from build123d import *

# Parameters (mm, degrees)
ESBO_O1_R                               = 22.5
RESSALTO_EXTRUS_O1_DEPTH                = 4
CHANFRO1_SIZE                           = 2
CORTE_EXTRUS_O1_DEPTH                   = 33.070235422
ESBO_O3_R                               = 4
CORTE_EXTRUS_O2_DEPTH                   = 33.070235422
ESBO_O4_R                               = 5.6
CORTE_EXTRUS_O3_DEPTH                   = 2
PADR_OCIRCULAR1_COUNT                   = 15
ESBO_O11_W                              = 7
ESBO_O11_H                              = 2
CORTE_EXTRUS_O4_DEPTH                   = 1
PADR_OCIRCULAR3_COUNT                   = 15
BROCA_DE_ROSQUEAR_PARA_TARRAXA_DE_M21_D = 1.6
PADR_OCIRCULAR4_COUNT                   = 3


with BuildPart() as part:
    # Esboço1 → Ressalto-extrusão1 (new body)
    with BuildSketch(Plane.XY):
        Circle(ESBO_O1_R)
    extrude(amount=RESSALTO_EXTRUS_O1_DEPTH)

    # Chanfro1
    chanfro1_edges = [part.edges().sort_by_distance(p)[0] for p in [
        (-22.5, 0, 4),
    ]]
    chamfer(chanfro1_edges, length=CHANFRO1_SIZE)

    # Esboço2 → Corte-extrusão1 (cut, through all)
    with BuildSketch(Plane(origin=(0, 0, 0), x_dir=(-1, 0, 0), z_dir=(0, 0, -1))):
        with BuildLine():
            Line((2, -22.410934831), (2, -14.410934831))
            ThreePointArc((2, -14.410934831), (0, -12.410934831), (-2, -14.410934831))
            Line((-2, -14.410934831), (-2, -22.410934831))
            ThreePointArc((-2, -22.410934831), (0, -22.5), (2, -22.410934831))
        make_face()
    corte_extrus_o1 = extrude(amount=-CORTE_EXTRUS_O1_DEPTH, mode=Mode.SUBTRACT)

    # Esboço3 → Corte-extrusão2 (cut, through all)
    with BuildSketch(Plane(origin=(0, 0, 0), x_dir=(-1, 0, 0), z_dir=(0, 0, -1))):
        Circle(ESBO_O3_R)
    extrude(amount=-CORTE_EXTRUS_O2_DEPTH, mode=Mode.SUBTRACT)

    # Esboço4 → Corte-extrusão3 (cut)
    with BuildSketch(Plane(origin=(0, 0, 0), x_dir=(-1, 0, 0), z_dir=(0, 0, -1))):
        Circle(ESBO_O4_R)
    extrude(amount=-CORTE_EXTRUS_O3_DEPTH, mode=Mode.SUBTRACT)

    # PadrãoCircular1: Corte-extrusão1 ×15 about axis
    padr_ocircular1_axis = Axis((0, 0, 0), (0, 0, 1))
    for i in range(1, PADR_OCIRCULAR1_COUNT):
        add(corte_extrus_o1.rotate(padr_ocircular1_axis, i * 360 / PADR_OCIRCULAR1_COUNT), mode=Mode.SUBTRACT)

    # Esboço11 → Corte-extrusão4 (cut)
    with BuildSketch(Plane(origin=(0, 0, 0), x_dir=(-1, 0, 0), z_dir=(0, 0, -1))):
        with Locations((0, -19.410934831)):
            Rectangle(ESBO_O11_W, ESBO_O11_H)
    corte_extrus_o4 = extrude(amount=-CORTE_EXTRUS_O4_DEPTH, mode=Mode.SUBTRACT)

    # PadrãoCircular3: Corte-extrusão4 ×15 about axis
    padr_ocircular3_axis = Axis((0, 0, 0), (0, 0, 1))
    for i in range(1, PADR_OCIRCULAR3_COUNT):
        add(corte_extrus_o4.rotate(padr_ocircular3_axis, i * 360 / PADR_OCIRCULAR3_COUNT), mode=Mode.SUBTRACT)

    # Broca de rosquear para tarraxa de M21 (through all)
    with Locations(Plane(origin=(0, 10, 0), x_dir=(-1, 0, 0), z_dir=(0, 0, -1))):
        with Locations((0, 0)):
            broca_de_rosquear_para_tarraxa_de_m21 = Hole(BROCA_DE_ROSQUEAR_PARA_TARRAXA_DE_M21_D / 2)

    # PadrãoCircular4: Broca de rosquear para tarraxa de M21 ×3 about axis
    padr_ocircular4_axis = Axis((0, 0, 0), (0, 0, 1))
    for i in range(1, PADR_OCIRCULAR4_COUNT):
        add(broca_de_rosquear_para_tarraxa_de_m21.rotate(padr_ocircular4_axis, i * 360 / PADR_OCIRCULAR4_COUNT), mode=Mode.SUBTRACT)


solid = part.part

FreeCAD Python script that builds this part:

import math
import FreeCAD as App
import Part
import Sketcher

V = App.Vector
Q = App.Units.Quantity


def edges_at(feature, points):
    """Names of the edges that pass closest to the given points."""
    edges = feature.Shape.Edges
    near = lambda p: min(range(len(edges)), key=lambda i: edges[i].distToShape(Part.Vertex(*p))[0])
    return sorted({f"Edge{near(p) + 1}" for p in points})

doc = App.newDocument("Part")
params = doc.addObject("Spreadsheet::Sheet", "Params")
for row, (alias, value) in enumerate([
    ("sketch1_diameter", "45 mm"),
    ("pad1_length", "4 mm"),
    ("chamfer_size", "2 mm"),
    ("sketch2_radius", "2 mm"),
    ("sketch2_radius2", "22.5 mm"),
    ("sketch2_height", "8 mm"),
    ("sketch3_diameter", "8 mm"),
    ("sketch4_diameter", "11.2 mm"),
    ("pocket3_length", "2 mm"),
    ("sketch5_width", "7 mm"),
    ("sketch5_height", "2 mm"),
    ("pocket4_length", "1 mm"),
    ("sketch6_diameter", "1.6 mm"),
    ("hole_diameter", "1.6 mm"),
], start=1):
    params.set(f"A{row}", alias)
    params.set(f"B{row}", "=" + value)
    params.setAlias(f"B{row}", alias)

body = doc.addObject("PartDesign::Body", "Body")

sketch1 = doc.addObject("Sketcher::SketchObject", "Sketch")
body.addObject(sketch1)
sketch1.AttachmentSupport = (doc.XY_Plane, [""])
sketch1.MapMode = "FlatFace"
sketch1.addGeometry(Part.Circle(V(0, 0, 0), V(0, 0, 1), 22), False)
sketch1.addConstraint([
    Sketcher.Constraint("Coincident", 0, 3, -1, 1),
    Sketcher.Constraint("Diameter", 0, Q("45 mm")),
])
sketch1.setExpression("Constraints[1]", "Params.sketch1_diameter")
pad1 = doc.addObject("PartDesign::Pad", "Pad")
body.addObject(pad1)
pad1.Profile = sketch1
pad1.setExpression("Length", "Params.pad1_length")
doc.recompute()

chamfer = doc.addObject("PartDesign::Chamfer", "Chamfer")
body.addObject(chamfer)
chamfer.Base = (pad1, edges_at(pad1, [(-22.5, 0, 4)]))
chamfer.setExpression("Size", "Params.chamfer_size")

sketch2 = doc.addObject("Sketcher::SketchObject", "Sketch001")
body.addObject(sketch2)
sketch2.AttachmentSupport = (doc.XY_Plane, [""])
sketch2.MapMode = "FlatFace"
sketch2.addGeometry([
    Part.LineSegment(V(-2, -22.4, 0), V(-2, -14.4, 0)),
    Part.ArcOfCircle(Part.Circle(V(0, -14.4, 0), V(0, 0, 1), 2), math.radians(0), math.radians(180)),
    Part.LineSegment(V(2, -14.4, 0), V(2, -22.4, 0)),
    Part.ArcOfCircle(Part.Circle(V(0, 0, 0), V(0, 0, 1), 22.5), math.radians(-95.1), math.radians(-84.9)),
], False)
sketch2.addConstraint([
    Sketcher.Constraint("Tangent", 0, 2, 1, 2),
    Sketcher.Constraint("Tangent", 1, 1, 2, 1),
    Sketcher.Constraint("Coincident", 2, 2, 3, 2),
    Sketcher.Constraint("Coincident", 3, 1, 0, 1),
    Sketcher.Constraint("Vertical", 0),
    Sketcher.Constraint("Vertical", 2),
    Sketcher.Constraint("Coincident", 3, 3, -1, 1),
    Sketcher.Constraint("PointOnObject", 1, 3, -2),
    Sketcher.Constraint("Radius", 1, Q("2 mm")),
    Sketcher.Constraint("Radius", 3, Q("22.5 mm")),
    Sketcher.Constraint("DistanceY", 0, 1, 0, 2, Q("8 mm")),
])
sketch2.setExpression("Constraints[8]", "Params.sketch2_radius")
sketch2.setExpression("Constraints[9]", "Params.sketch2_radius2")
sketch2.setExpression("Constraints[10]", "Params.sketch2_height")
pocket1 = doc.addObject("PartDesign::Pocket", "Pocket")
body.addObject(pocket1)
pocket1.Profile = sketch2
pocket1.Type = "ThroughAll"
pocket1.Reversed = True

sketch3 = doc.addObject("Sketcher::SketchObject", "Sketch002")
body.addObject(sketch3)
sketch3.AttachmentSupport = (doc.XY_Plane, [""])
sketch3.MapMode = "FlatFace"
sketch3.addGeometry(Part.Circle(V(0, 0, 0), V(0, 0, 1), 4), False)
sketch3.addConstraint([
    Sketcher.Constraint("Coincident", 0, 3, -1, 1),
    Sketcher.Constraint("Diameter", 0, Q("8 mm")),
])
sketch3.setExpression("Constraints[1]", "Params.sketch3_diameter")
pocket2 = doc.addObject("PartDesign::Pocket", "Pocket001")
body.addObject(pocket2)
pocket2.Profile = sketch3
pocket2.Type = "ThroughAll"
pocket2.Reversed = True

sketch4 = doc.addObject("Sketcher::SketchObject", "Sketch003")
body.addObject(sketch4)
sketch4.AttachmentSupport = (doc.XY_Plane, [""])
sketch4.MapMode = "FlatFace"
sketch4.addGeometry(Part.Circle(V(0, 0, 0), V(0, 0, 1), 6), False)
sketch4.addConstraint([
    Sketcher.Constraint("Coincident", 0, 3, -1, 1),
    Sketcher.Constraint("Diameter", 0, Q("11.2 mm")),
])
sketch4.setExpression("Constraints[1]", "Params.sketch4_diameter")
pocket3 = doc.addObject("PartDesign::Pocket", "Pocket002")
body.addObject(pocket3)
pocket3.Profile = sketch4
pocket3.setExpression("Length", "Params.pocket3_length")
pocket3.Reversed = True
doc.recompute()

polarpattern = doc.addObject("PartDesign::PolarPattern", "PolarPattern")
body.addObject(polarpattern)
polarpattern.Originals = [pocket1]
polarpattern.Axis = (doc.Z_Axis, [""])
polarpattern.Angle = 360
polarpattern.Occurrences = 15
body.Tip = polarpattern

sketch5 = doc.addObject("Sketcher::SketchObject", "Sketch004")
body.addObject(sketch5)
sketch5.AttachmentSupport = (doc.XY_Plane, [""])
sketch5.MapMode = "FlatFace"
sketch5.addGeometry([
    Part.LineSegment(V(3.5, -18.4, 0), V(3.5, -20.4, 0)),
    Part.LineSegment(V(3.5, -20.4, 0), V(-3.5, -20.4, 0)),
    Part.LineSegment(V(-3.5, -20.4, 0), V(-3.5, -18.4, 0)),
    Part.LineSegment(V(-3.5, -18.4, 0), V(3.5, -18.4, 0)),
], False)
sketch5.addConstraint([
    Sketcher.Constraint("Coincident", 0, 2, 1, 1),
    Sketcher.Constraint("Coincident", 1, 2, 2, 1),
    Sketcher.Constraint("Coincident", 2, 2, 3, 1),
    Sketcher.Constraint("Coincident", 3, 2, 0, 1),
    Sketcher.Constraint("Vertical", 0),
    Sketcher.Constraint("Horizontal", 1),
    Sketcher.Constraint("Vertical", 2),
    Sketcher.Constraint("Horizontal", 3),
    Sketcher.Constraint("DistanceX", 1, 2, 1, 1, Q("7 mm")),
    Sketcher.Constraint("DistanceY", 0, 2, 0, 1, Q("2 mm")),
    Sketcher.Constraint("DistanceX", -1, 1, 0, 2, Q("3.5 mm")),
    Sketcher.Constraint("DistanceY", 0, 2, -1, 1, Q("20.410935 mm")),
])
sketch5.setExpression("Constraints[8]", "Params.sketch5_width")
sketch5.setExpression("Constraints[9]", "Params.sketch5_height")
pocket4 = doc.addObject("PartDesign::Pocket", "Pocket003")
body.addObject(pocket4)
pocket4.Profile = sketch5
pocket4.setExpression("Length", "Params.pocket4_length")
pocket4.Reversed = True
doc.recompute()

polarpattern2 = doc.addObject("PartDesign::PolarPattern", "PolarPattern001")
body.addObject(polarpattern2)
polarpattern2.Originals = [pocket4]
polarpattern2.Axis = (doc.Z_Axis, [""])
polarpattern2.Angle = 360
polarpattern2.Occurrences = 15
body.Tip = polarpattern2

sketch6 = doc.addObject("Sketcher::SketchObject", "Sketch005")
body.addObject(sketch6)
sketch6.AttachmentSupport = (doc.XY_Plane, [""])
sketch6.MapMode = "FlatFace"
sketch6.addGeometry(Part.Circle(V(0, 10, 0), V(0, 0, 1), 0.8), False)
sketch6.addConstraint([
    Sketcher.Constraint("PointOnObject", 0, 3, -2),
    Sketcher.Constraint("Diameter", 0, Q("1.6 mm")),
    Sketcher.Constraint("DistanceY", -1, 1, 0, 3, Q("10 mm")),
])
sketch6.setExpression("Constraints[1]", "Params.sketch6_diameter")
doc.recompute()
hole = doc.addObject("PartDesign::Hole", "Hole")
body.addObject(hole)
hole.Profile = sketch6
hole.ThreadType = "None"
hole.setExpression("Diameter", "Params.hole_diameter")
hole.DepthType = "ThroughAll"
hole.Reversed = True
doc.recompute()

polarpattern3 = doc.addObject("PartDesign::PolarPattern", "PolarPattern002")
body.addObject(polarpattern3)
polarpattern3.Originals = [hole]
polarpattern3.Axis = (doc.Z_Axis, [""])
polarpattern3.Angle = 360
polarpattern3.Occurrences = 3
body.Tip = polarpattern3

doc.recompute()
